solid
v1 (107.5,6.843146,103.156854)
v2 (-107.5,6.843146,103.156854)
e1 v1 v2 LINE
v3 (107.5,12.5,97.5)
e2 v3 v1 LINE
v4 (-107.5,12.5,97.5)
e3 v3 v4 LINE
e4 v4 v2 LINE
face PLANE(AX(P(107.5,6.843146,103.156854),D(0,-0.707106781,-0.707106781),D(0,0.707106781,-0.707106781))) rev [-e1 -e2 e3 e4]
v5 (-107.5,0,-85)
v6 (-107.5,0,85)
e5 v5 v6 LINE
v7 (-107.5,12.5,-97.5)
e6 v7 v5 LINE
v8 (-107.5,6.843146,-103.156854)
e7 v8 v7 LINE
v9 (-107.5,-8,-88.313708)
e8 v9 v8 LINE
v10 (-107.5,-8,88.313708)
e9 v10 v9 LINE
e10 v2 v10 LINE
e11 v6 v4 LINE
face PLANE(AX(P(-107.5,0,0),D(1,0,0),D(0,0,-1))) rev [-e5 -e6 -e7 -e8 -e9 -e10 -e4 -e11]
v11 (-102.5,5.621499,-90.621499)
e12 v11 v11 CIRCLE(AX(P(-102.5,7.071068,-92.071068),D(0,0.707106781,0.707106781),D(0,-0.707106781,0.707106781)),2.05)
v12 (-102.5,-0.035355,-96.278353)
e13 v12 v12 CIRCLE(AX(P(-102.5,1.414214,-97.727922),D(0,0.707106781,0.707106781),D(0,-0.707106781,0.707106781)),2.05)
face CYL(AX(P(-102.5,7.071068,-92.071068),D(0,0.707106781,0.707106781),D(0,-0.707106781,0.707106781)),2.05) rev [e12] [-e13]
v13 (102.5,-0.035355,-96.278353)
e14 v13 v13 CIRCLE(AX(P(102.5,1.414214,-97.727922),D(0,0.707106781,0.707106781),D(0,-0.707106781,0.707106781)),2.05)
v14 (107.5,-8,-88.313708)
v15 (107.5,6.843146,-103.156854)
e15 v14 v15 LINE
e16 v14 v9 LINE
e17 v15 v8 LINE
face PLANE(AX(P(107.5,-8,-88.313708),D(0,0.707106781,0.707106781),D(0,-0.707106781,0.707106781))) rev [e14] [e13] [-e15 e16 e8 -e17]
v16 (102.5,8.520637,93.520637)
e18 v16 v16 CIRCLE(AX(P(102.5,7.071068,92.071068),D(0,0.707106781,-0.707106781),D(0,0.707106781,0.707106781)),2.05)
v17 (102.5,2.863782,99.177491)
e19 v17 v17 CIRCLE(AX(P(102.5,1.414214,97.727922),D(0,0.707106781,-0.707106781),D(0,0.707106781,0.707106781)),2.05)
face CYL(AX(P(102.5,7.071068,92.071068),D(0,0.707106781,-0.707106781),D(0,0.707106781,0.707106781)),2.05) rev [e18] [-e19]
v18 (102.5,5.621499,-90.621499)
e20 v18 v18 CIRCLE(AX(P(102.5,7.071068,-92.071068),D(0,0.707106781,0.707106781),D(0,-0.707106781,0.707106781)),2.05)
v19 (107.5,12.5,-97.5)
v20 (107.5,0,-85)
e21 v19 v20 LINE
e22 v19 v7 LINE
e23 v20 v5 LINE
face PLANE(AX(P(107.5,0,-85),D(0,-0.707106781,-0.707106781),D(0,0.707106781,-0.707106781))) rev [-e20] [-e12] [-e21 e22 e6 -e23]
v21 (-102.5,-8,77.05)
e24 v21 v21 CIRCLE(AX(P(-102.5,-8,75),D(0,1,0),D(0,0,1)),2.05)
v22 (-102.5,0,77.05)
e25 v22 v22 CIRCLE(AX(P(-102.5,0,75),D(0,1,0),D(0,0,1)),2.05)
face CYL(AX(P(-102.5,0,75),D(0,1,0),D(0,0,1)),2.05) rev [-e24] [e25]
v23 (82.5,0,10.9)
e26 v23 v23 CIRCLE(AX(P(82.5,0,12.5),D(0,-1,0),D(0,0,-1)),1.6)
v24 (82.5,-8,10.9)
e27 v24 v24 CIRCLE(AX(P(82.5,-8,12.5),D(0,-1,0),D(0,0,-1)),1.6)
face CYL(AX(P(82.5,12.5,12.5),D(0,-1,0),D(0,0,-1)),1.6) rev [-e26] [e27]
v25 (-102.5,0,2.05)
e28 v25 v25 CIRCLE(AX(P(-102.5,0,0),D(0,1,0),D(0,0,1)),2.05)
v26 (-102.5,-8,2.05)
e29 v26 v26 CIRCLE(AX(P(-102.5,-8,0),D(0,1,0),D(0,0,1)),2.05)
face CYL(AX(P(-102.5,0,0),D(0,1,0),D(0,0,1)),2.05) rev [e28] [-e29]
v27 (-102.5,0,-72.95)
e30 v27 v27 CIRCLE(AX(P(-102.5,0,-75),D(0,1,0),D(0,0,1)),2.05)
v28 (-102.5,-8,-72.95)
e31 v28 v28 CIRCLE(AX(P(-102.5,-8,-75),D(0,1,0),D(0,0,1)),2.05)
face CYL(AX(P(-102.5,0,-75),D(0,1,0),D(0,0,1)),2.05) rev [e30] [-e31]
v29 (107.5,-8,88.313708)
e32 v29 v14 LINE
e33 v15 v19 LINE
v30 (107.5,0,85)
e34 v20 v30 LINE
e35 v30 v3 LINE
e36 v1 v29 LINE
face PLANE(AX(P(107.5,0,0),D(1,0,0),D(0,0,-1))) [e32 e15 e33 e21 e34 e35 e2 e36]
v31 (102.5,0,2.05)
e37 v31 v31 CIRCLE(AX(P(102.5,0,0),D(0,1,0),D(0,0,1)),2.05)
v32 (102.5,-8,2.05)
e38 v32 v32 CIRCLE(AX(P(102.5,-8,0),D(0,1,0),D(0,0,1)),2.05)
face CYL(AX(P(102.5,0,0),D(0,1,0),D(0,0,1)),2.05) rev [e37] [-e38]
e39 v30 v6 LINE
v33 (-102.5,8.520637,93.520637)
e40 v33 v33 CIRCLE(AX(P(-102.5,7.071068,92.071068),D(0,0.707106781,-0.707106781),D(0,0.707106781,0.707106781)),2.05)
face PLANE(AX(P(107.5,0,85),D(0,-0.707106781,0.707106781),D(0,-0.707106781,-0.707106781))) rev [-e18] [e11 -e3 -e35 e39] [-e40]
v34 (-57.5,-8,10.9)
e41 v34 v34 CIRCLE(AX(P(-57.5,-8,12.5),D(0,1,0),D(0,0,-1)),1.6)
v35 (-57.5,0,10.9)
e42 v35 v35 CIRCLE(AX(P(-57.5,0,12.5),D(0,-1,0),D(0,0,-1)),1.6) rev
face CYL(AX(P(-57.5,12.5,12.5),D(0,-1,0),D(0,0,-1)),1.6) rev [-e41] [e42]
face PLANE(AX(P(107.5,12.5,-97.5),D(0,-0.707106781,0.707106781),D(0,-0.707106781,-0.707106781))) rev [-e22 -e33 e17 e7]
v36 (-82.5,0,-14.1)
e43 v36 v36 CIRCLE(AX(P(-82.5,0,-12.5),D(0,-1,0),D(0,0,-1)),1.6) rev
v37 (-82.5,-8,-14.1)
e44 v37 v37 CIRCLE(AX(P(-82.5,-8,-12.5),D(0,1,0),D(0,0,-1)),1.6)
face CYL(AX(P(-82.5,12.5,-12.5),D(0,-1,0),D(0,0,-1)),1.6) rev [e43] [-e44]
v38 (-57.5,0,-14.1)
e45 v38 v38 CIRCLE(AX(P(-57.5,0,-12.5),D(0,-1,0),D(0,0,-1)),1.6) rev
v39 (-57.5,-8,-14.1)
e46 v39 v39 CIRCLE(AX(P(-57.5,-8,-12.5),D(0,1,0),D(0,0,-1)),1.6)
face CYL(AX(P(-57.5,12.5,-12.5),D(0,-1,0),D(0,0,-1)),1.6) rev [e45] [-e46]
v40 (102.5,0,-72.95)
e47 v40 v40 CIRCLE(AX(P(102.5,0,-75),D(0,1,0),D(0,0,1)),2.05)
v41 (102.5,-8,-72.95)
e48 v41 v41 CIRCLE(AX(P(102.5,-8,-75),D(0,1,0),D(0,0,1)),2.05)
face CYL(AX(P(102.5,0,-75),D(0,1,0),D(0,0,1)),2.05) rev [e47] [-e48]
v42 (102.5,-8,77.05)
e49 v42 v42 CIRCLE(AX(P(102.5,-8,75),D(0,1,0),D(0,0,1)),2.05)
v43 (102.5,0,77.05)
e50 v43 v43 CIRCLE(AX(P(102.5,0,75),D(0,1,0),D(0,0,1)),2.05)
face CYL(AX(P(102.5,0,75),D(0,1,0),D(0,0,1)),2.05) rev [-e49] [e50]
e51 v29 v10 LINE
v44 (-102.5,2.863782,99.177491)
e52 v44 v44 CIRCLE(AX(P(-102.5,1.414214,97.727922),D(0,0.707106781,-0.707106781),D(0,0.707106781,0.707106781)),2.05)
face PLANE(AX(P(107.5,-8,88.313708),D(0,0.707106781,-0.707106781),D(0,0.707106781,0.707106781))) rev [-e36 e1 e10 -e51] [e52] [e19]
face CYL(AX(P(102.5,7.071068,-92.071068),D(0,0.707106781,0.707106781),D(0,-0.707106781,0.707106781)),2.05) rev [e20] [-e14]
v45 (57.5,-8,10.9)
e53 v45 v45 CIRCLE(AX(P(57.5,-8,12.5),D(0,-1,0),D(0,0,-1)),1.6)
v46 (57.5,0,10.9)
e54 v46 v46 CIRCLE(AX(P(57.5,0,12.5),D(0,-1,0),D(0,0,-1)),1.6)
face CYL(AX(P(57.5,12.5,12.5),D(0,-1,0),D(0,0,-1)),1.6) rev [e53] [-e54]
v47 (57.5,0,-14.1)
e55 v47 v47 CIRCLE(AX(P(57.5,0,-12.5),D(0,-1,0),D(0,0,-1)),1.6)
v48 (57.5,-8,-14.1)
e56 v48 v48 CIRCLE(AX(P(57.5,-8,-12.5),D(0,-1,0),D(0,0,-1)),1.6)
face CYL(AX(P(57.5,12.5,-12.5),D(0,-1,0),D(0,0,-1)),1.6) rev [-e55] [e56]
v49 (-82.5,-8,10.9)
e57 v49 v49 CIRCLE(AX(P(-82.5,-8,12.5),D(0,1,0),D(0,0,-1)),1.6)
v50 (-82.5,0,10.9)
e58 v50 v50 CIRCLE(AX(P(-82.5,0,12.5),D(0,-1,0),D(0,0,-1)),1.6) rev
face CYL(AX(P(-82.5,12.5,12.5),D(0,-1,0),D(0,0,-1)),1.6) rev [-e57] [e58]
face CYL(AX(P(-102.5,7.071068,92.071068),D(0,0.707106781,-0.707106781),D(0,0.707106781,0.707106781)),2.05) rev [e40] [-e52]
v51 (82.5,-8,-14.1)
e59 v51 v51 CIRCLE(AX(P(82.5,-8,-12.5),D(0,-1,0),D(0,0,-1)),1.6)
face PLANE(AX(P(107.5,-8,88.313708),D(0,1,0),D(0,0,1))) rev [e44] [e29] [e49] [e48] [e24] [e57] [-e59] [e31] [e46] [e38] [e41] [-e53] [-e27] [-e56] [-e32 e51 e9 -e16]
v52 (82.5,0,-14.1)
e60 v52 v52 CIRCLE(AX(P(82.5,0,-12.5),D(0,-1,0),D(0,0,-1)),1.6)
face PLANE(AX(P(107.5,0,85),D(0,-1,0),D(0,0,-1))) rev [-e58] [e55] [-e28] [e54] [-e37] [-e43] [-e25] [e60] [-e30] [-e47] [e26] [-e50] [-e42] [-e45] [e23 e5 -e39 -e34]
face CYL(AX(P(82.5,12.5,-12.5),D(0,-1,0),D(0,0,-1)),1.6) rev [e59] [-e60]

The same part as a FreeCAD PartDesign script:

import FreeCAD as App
import Part
import Sketcher

V = App.Vector

doc = App.newDocument("Part")
params = doc.addObject("Spreadsheet::Sheet", "Params")
for row, (alias, value) in enumerate([
    ("sketch1_height", "170 mm"),
    ("sketch1_length", "8 mm"),
    ("pad1_length", "215 mm"),
    ("sketch2_diameter", "4.1 mm"),
    ("hole_diameter", "4.1 mm"),
    ("sketch3_diameter", "4.1 mm"),
    ("hole2_diameter", "4.1 mm"),
    ("sketch4_diameter", "4.1 mm"),
    ("hole3_diameter", "4.1 mm"),
    ("sketch5_diameter", "4.1 mm"),
    ("hole4_diameter", "4.1 mm"),
    ("sketch6_diameter", "3.2 mm"),
], start=1):
    params.set(f"A{row}", alias)
    params.set(f"B{row}", "=" + value)
    params.setAlias(f"B{row}", alias)

body = doc.addObject("PartDesign::Body", "Body")

sketch1 = body.newObject("Sketcher::SketchObject", "Sketch")
sketch1.AttachmentSupport = (doc.getObject("YZ_Plane"), [""])
sketch1.MapMode = "FlatFace"
sketch1.addGeometry(Part.LineSegment(V(0, -85, 0), V(0, 85, 0)), False)
sketch1.addGeometry(Part.LineSegment(V(0, 85, 0), V(12, 98, 0)), False)
sketch1.addGeometry(Part.LineSegment(V(12, 98, 0), V(7, 103, 0)), False)
sketch1.addGeometry(Part.LineSegment(V(7, 103, 0), V(-8, 88, 0)), False)
sketch1.addGeometry(Part.LineSegment(V(-8, 88, 0), V(-8, -88, 0)), False)
sketch1.addGeometry(Part.LineSegment(V(-8, -88, 0), V(7, -103, 0)), False)
sketch1.addGeometry(Part.LineSegment(V(7, -103, 0), V(12, -98, 0)), False)
sketch1.addGeometry(Part.LineSegment(V(12, -98, 0), V(0, -85, 0)), False)
sketch1.addConstraint(Sketcher.Constraint("Coincident", 0, 2, 1, 1))
sketch1.addConstraint(Sketcher.Constraint("Coincident", 1, 2, 2, 1))
sketch1.addConstraint(Sketcher.Constraint("Coincident", 2, 2, 3, 1))
sketch1.addConstraint(Sketcher.Constraint("Coincident", 3, 2, 4, 1))
sketch1.addConstraint(Sketcher.Constraint("Coincident", 4, 2, 5, 1))
sketch1.addConstraint(Sketcher.Constraint("Coincident", 5, 2, 6, 1))
sketch1.addConstraint(Sketcher.Constraint("Coincident", 6, 2, 7, 1))
sketch1.addConstraint(Sketcher.Constraint("Coincident", 7, 2, 0, 1))
sketch1.addConstraint(Sketcher.Constraint("Vertical", 0))
sketch1.addConstraint(Sketcher.Constraint("Vertical", 4))
sketch1.addConstraint(Sketcher.Constraint("Symmetric", 0, 2, 7, 2, -1, 1))
sketch1.addConstraint(Sketcher.Constraint("Symmetric", 2, 2, 5, 2, -1))
sketch1.addConstraint(Sketcher.Constraint("Symmetric", 1, 2, 6, 2, -1))
sketch1.addConstraint(Sketcher.Constraint("Perpendicular", 1, 2))
sketch1.addConstraint(Sketcher.Constraint("Perpendicular", 2, 3))
sketch1.addConstraint(Sketcher.Constraint("Perpendicular", 3, 5))
sketch1.addConstraint(Sketcher.Constraint("Perpendicular", 5, 6))
sketch1.addConstraint(Sketcher.Constraint("DistanceY", 0, 1, 0, 2, 170.0))
sketch1.addConstraint(Sketcher.Constraint("Distance", 2, 8.0))
sketch1.addConstraint(Sketcher.Constraint("DistanceX", 3, 2, -1, 1, 8.0))
sketch1.addConstraint(Sketcher.Constraint("DistanceY", 6, 2, 1, 2, 195.0))
sketch1.setExpression("Constraints[17]", "Params.sketch1_height")
sketch1.setExpression("Constraints[18]", "Params.sketch1_length")
pad1 = body.newObject("PartDesign::Pad", "Pad")
pad1.Profile = sketch1
pad1.setExpression("Length", "Params.pad1_length")
pad1.Midplane = True

sketch2 = body.newObject("Sketcher::SketchObject", "Sketch001")
sketch2.Placement = App.Placement(V(0, -42.5, -42.5), App.Rotation(V(0, 0.707106781, -0.707106781), V(-0.999999999, 0, 0), V(0, 0.707106781, 0.707106781), "ZXY"))
sketch2.addGeometry(Part.Circle(V(70.1, 102.5, 0), V(0, 0, 1), 2), False)
sketch2.addConstraint(Sketcher.Constraint("Diameter", 0, 4.1))
sketch2.addConstraint(Sketcher.Constraint("DistanceY", -1, 1, 0, 3, 102.5))
sketch2.addConstraint(Sketcher.Constraint("DistanceX", -1, 1, 0, 3, 70.104076))
sketch2.setExpression("Constraints[0]", "Params.sketch2_diameter")
doc.recompute()
hole = body.newObject("PartDesign::Hole", "Hole")
hole.Profile = sketch2
hole.ThreadType = "None"
hole.setExpression("Diameter", "Params.hole_diameter")
hole.DepthType = "ThroughAll"

sketch3 = body.newObject("Sketcher::SketchObject", "Sketch002")
sketch3.AttachmentSupport = (doc.getObject("XZ_Plane"), [""])
sketch3.MapMode = "FlatFace"
sketch3.addGeometry(Part.Circle(V(-102.5, -75, 0), V(0, 0, 1), 2), False)
sketch3.addGeometry(Part.Circle(V(-102.5, 0, 0), V(0, 0, 1), 2), False)
sketch3.addGeometry(Part.Circle(V(-102.5, 75, 0), V(0, 0, 1), 2), False)
sketch3.addGeometry(Part.Circle(V(102.5, 75, 0), V(0, 0, 1), 2), False)
sketch3.addGeometry(Part.Circle(V(102.5, 0, 0), V(0, 0, 1), 2), False)
sketch3.addGeometry(Part.Circle(V(102.5, -75, 0), V(0, 0, 1), 2), False)
sketch3.addConstraint(Sketcher.Constraint("Equal", 0, 1))
sketch3.addConstraint(Sketcher.Constraint("Equal", 1, 2))
sketch3.addConstraint(Sketcher.Constraint("Equal", 2, 3))
sketch3.addConstraint(Sketcher.Constraint("Equal", 3, 4))
sketch3.addConstraint(Sketcher.Constraint("Equal", 4, 5))
sketch3.addConstraint(Sketcher.Constraint("Symmetric", 0, 3, 3, 3, -1, 1))
sketch3.addConstraint(Sketcher.Constraint("Symmetric", 1, 3, 4, 3, -1, 1))
sketch3.addConstraint(Sketcher.Constraint("Symmetric", 2, 3, 5, 3, -1, 1))
sketch3.addConstraint(Sketcher.Constraint("Symmetric", 2, 3, 3, 3, -2))
sketch3.addConstraint(Sketcher.Constraint("PointOnObject", 1, 3, -1))
sketch3.addConstraint(Sketcher.Constraint("Vertical", 0, 3, 1, 3))
sketch3.addConstraint(Sketcher.Constraint("Diameter", 0, 4.1))
sketch3.addConstraint(Sketcher.Constraint("DistanceY", 0, 3, -1, 1, 75.0))
sketch3.addConstraint(Sketcher.Constraint("DistanceX", 2, 3, 3, 3, 205.0))
sketch3.setExpression("Constraints[11]", "Params.sketch3_diameter")
doc.recompute()
hole2 = body.newObject("PartDesign::Hole", "Hole001")
hole2.Profile = sketch3
hole2.ThreadType = "None"
hole2.setExpression("Diameter", "Params.hole2_diameter")
hole2.DepthType = "ThroughAll"
hole2.Reversed = True

sketch4 = body.newObject("Sketcher::SketchObject", "Sketch003")
sketch4.Placement = App.Placement(V(0, -42.5, 42.5), App.Rotation(V(0, -0.707106781, -0.707106781), V(-0.999999999, 0, 0), V(0, 0.707106781, -0.707106781), "ZXY"))
sketch4.addGeometry(Part.Circle(V(-70.1, 102.5, 0), V(0, 0, 1), 2), False)
sketch4.addGeometry(Part.Circle(V(-70.1, -102.5, 0), V(0, 0, 1), 2), False)
sketch4.addConstraint(Sketcher.Constraint("Equal", 0, 1))
sketch4.addConstraint(Sketcher.Constraint("Symmetric", 0, 3, 1, 3, -1))
sketch4.addConstraint(Sketcher.Constraint("Diameter", 0, 4.1))
sketch4.addConstraint(Sketcher.Constraint("DistanceY", 1, 3, 0, 3, 205.0))
sketch4.addConstraint(Sketcher.Constraint("DistanceX", 0, 3, -1, 1, 70.104076))
sketch4.setExpression("Constraints[2]", "Params.sketch4_diameter")
doc.recompute()
hole3 = body.newObject("PartDesign::Hole", "Hole002")
hole3.Profile = sketch4
hole3.ThreadType = "None"
hole3.setExpression("Diameter", "Params.hole3_diameter")
hole3.DepthType = "ThroughAll"

sketch5 = body.newObject("Sketcher::SketchObject", "Sketch004")
sketch5.Placement = App.Placement(V(0, -42.5, -42.5), App.Rotation(V(0, 0.707106781, -0.707106781), V(-0.999999999, 0, 0), V(0, 0.707106781, 0.707106781), "ZXY"))
sketch5.addGeometry(Part.Circle(V(70.1, -102.5, 0), V(0, 0, 1), 2), False)
sketch5.addConstraint(Sketcher.Constraint("Diameter", 0, 4.1))
sketch5.addConstraint(Sketcher.Constraint("DistanceY", 0, 3, -1, 1, 102.5))
sketch5.addConstraint(Sketcher.Constraint("DistanceX", -1, 1, 0, 3, 70.104076))
sketch5.setExpression("Constraints[0]", "Params.sketch5_diameter")
doc.recompute()
hole4 = body.newObject("PartDesign::Hole", "Hole003")
hole4.Profile = sketch5
hole4.ThreadType = "None"
hole4.setExpression("Diameter", "Params.hole4_diameter")
hole4.DepthType = "ThroughAll"

sketch6 = body.newObject("Sketcher::SketchObject", "Sketch005")
sketch6.AttachmentSupport = (doc.getObject("XZ_Plane"), [""])
sketch6.MapMode = "FlatFace"
sketch6.AttachmentOffset = App.Placement(V(0, 0, 8), App.Rotation())
sketch6.addGeometry(Part.Circle(V(57.5, 12.5, 0), V(0, 0, 1), 1.6), False)
sketch6.addGeometry(Part.Circle(V(82.5, 12.5, 0), V(0, 0, 1), 1.6), False)
sketch6.addGeometry(Part.Circle(V(82.5, -12.5, 0), V(0, 0, 1), 1.6), False)
sketch6.addGeometry(Part.Circle(V(57.5, -12.5, 0), V(0, 0, 1), 1.6), False)
sketch6.addConstraint(Sketcher.Constraint("Equal", 0, 1))
sketch6.addConstraint(Sketcher.Constraint("Equal", 1, 2))
sketch6.addConstraint(Sketcher.Constraint("Equal", 2, 3))
sketch6.addConstraint(Sketcher.Constraint("Symmetric", 1, 3, 2, 3, -1))
sketch6.addConstraint(Sketcher.Constraint("Symmetric", 0, 3, 3, 3, -1))
sketch6.addConstraint(Sketcher.Constraint("Horizontal", 0, 3, 1, 3))
sketch6.addConstraint(Sketcher.Constraint("Diameter", 0, 3.2))
sketch6.addConstraint(Sketcher.Constraint("DistanceX", 0, 3, 1, 3, 25.0))
sketch6.addConstraint(Sketcher.Constraint("DistanceY", 2, 3, 1, 3, 25.0))
sketch6.addConstraint(Sketcher.Constraint("DistanceX", -1, 1, 0, 3, 57.5))
sketch6.setExpression("Constraints[6]", "Params.sketch6_diameter")
pocket1 = body.newObject("PartDesign::Pocket", "Pocket")
pocket1.Profile = sketch6
pocket1.Type = "ThroughAll"
doc.recompute()

mirrored = body.newObject("PartDesign::Mirrored", "Mirrored")
mirrored.Originals = [pocket1]
mirrored.MirrorPlane = (doc.getObject("YZ_Plane"), [""])
body.Tip = mirrored

doc.recompute()
